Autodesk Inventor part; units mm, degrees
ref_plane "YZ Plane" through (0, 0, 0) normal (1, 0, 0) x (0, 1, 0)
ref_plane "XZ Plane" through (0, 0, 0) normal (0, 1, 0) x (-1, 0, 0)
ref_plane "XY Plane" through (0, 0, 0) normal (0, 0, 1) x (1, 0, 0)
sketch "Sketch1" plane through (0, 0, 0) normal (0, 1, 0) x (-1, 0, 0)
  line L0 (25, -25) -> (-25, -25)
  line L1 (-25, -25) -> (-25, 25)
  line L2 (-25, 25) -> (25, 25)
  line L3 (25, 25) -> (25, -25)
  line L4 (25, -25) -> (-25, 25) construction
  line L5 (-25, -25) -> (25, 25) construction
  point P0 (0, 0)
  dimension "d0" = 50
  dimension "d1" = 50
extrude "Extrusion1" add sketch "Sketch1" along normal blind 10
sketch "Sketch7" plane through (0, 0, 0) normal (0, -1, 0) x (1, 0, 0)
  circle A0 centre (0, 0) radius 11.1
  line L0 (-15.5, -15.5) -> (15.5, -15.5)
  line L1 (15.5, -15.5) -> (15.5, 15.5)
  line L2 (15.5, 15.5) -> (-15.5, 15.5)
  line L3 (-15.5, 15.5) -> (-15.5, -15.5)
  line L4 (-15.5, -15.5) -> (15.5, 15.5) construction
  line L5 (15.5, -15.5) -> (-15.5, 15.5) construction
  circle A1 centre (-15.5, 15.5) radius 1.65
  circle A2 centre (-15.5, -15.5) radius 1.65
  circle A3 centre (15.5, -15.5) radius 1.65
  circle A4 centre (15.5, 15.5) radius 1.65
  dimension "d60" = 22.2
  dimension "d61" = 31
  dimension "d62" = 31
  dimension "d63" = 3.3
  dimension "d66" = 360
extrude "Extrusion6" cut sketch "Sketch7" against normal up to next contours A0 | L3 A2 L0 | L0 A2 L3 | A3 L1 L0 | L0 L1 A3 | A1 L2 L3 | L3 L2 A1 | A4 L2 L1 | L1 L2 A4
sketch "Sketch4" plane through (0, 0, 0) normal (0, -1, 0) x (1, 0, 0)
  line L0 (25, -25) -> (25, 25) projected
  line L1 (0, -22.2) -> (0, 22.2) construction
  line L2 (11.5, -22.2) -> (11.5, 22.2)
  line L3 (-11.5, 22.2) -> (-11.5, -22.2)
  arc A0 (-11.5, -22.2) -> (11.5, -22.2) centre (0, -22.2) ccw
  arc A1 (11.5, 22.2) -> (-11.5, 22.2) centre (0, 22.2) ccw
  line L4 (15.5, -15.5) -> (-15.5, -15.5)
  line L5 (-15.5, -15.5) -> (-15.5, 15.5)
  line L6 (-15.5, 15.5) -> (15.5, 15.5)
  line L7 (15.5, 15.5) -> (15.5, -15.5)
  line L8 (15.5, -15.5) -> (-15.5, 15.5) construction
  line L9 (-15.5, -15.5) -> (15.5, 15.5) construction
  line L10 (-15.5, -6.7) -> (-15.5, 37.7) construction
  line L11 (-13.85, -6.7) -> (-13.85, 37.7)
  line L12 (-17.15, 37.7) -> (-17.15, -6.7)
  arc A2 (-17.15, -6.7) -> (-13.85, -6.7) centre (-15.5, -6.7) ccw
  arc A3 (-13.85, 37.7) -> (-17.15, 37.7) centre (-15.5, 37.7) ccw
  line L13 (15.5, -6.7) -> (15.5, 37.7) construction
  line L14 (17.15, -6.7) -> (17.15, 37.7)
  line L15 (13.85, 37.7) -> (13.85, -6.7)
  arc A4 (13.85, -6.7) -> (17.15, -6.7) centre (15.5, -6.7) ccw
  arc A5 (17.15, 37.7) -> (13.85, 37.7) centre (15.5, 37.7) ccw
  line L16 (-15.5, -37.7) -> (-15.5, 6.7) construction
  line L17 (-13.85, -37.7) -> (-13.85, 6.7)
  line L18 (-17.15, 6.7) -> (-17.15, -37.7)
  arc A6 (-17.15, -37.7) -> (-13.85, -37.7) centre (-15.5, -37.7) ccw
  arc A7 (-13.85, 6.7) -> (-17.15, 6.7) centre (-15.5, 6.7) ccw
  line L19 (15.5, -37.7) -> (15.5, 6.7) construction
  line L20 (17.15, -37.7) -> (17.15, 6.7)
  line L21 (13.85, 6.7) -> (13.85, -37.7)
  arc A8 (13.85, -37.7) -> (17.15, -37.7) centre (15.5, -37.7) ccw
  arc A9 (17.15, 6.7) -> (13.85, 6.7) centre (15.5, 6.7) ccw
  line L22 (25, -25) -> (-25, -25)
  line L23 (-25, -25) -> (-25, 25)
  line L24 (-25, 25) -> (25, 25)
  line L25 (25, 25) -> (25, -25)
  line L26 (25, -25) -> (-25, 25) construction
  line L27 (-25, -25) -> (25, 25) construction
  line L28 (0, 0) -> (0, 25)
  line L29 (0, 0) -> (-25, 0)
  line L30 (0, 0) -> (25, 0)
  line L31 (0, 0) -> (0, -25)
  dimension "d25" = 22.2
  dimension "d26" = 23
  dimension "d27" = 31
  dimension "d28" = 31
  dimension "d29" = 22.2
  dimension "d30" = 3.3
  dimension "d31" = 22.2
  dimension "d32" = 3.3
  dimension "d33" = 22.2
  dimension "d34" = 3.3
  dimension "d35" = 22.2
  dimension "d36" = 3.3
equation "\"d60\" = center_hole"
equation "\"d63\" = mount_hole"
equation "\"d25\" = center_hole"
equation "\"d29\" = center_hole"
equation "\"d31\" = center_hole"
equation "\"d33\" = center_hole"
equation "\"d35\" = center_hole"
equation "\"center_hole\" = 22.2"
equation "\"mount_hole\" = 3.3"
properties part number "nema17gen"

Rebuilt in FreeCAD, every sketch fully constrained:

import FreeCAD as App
import Part
import Sketcher

V = App.Vector
Q = App.Units.Quantity

doc = App.newDocument("Part")
body = doc.addObject("PartDesign::Body", "Body")

# Sketch on XZ plane
sketch1 = body.newObject("Sketcher::SketchObject", "Sketch")
sketch1.AttachmentSupport = (doc.getObject("XZ_Plane"), [""])
sketch1.MapMode = "FlatFace"
sketch1.addGeometry([
    Part.LineSegment(V(25, -25, 0), V(-25, -25, 0)),
    Part.LineSegment(V(-25, -25, 0), V(-25, 25, 0)),
    Part.LineSegment(V(-25, 25, 0), V(25, 25, 0)),
    Part.LineSegment(V(25, 25, 0), V(25, -25, 0)),
], False)
sketch1.addConstraint([
    Sketcher.Constraint("Coincident", 0, 2, 1, 1),
    Sketcher.Constraint("Coincident", 1, 2, 2, 1),
    Sketcher.Constraint("Coincident", 2, 2, 3, 1),
    Sketcher.Constraint("Coincident", 3, 2, 0, 1),
    Sketcher.Constraint("Horizontal", 0),
    Sketcher.Constraint("Vertical", 1),
    Sketcher.Constraint("Horizontal", 2),
    Sketcher.Constraint("Vertical", 3),
    Sketcher.Constraint("Symmetric", 0, 2, 2, 2, -1, 1),
    Sketcher.Constraint("Equal", 2, 1),
    Sketcher.Constraint("DistanceX", 0, 2, 0, 1, Q("50 mm")),
])
pad1 = body.newObject("PartDesign::Pad", "Pad")
pad1.Profile = sketch1
pad1.Length = 10
pad1.Reversed = True

# Sketch on XZ plane
sketch2 = body.newObject("Sketcher::SketchObject", "Sketch001")
sketch2.AttachmentSupport = (doc.getObject("XZ_Plane"), [""])
sketch2.MapMode = "FlatFace"
sketch2.addGeometry([
    Part.Circle(V(0, 0, 0), V(0, 0, 1), 11.1),  # 0
    Part.Circle(V(-15.5, -15.5, 0), V(0, 0, 1), 1.6),  # 1
    Part.Circle(V(15.5, -15.5, 0), V(0, 0, 1), 1.6),  # 2
    Part.Circle(V(-15.5, 15.5, 0), V(0, 0, 1), 1.6),  # 3
    Part.Circle(V(15.5, 15.5, 0), V(0, 0, 1), 1.6),  # 4
], False)
sketch2.addConstraint([
    Sketcher.Constraint("Coincident", 0, 3, -1, 1),
    Sketcher.Constraint("Equal", 1, 2),
    Sketcher.Constraint("Equal", 2, 3),
    Sketcher.Constraint("Equal", 3, 4),
    Sketcher.Constraint("Symmetric", 2, 3, 3, 3, -1, 1),
    Sketcher.Constraint("Symmetric", 1, 3, 4, 3, -1, 1),
    Sketcher.Constraint("Symmetric", 1, 3, 2, 3, -2),
    Sketcher.Constraint("Diameter", 0, Q("22.2 mm")),
    Sketcher.Constraint("Diameter", 1, Q("3.3 mm")),
    Sketcher.Constraint("DistanceX", 1, 3, 2, 3, Q("31 mm")),
    Sketcher.Constraint("DistanceY", 1, 3, 3, 3, Q("31 mm")),
])
pocket1 = body.newObject("PartDesign::Pocket", "Pocket")
pocket1.Profile = sketch2
pocket1.Type = "UpToFirst"

doc.recompute()
